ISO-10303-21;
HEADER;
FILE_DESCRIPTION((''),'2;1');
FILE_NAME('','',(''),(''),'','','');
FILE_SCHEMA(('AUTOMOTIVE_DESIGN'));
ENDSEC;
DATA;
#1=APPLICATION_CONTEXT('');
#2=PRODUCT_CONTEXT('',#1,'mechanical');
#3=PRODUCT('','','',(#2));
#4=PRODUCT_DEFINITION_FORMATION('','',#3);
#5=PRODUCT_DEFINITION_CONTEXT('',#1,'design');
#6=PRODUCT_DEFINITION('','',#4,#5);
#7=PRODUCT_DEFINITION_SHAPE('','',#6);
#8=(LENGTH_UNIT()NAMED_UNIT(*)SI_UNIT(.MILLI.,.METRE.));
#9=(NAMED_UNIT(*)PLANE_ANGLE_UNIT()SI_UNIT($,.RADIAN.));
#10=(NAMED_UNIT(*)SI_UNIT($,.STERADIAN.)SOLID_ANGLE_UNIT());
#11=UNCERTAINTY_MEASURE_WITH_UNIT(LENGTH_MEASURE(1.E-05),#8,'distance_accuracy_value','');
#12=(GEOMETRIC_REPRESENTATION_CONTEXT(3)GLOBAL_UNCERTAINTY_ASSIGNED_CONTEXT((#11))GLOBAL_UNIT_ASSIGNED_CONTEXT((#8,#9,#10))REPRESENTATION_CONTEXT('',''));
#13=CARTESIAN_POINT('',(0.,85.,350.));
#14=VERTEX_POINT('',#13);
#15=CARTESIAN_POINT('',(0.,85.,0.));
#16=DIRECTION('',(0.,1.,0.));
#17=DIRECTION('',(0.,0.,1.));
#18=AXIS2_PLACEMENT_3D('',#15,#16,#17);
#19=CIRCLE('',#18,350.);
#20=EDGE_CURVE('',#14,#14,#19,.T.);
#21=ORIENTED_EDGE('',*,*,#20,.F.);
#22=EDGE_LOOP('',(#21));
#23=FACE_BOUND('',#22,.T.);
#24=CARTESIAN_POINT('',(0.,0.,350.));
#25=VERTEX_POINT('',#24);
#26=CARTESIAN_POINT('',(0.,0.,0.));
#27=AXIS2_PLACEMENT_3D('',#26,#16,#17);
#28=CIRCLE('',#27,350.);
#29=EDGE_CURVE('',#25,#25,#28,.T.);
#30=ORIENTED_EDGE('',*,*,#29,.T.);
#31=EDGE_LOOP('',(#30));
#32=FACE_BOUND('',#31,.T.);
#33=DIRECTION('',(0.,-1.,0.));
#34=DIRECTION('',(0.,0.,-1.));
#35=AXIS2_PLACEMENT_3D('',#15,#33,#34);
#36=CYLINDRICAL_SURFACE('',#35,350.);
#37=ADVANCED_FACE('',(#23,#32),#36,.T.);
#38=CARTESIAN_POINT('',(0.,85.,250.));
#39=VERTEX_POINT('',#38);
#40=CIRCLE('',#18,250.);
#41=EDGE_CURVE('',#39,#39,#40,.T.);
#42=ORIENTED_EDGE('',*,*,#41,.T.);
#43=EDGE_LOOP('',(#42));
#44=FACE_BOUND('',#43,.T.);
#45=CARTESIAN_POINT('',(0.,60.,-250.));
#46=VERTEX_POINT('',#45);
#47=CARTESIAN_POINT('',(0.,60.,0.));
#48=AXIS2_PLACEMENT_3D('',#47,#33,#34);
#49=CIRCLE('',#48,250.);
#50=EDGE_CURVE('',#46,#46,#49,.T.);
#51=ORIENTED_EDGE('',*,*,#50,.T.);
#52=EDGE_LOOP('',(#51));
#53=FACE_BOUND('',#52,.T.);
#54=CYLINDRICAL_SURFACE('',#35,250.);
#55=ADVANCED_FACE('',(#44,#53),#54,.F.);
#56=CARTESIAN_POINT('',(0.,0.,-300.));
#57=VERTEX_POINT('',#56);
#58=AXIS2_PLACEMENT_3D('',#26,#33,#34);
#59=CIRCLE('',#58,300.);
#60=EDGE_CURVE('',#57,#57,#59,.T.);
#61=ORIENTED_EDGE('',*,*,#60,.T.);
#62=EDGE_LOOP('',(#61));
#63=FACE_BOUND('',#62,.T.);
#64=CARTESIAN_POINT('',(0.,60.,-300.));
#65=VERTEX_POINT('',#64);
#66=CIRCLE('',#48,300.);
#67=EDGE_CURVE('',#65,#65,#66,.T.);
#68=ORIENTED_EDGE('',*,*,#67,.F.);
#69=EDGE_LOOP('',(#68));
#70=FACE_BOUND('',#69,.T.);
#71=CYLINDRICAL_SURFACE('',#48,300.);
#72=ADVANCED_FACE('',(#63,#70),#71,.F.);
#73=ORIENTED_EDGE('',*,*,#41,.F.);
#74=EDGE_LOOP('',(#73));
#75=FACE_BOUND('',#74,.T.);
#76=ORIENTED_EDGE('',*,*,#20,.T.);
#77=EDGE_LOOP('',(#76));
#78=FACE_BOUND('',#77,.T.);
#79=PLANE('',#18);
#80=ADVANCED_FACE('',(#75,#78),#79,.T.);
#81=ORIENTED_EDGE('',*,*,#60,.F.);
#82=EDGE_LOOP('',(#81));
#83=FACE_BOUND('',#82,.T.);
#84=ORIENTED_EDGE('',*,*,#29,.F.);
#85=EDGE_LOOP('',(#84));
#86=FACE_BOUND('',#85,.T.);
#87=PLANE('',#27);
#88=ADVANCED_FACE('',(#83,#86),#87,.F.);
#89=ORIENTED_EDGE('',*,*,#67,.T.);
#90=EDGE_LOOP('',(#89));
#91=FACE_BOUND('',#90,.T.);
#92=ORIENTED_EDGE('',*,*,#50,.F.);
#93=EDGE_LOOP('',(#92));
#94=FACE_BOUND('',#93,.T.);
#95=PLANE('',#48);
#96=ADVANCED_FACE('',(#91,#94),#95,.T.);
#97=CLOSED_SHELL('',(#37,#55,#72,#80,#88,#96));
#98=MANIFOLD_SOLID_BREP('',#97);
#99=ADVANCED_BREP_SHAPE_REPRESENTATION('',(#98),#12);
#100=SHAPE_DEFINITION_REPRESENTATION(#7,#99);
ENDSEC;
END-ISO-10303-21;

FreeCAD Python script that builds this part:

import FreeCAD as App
import Part
import Sketcher

V = App.Vector
Q = App.Units.Quantity

doc = App.newDocument("Part")
params = doc.addObject("Spreadsheet::Sheet", "Params")
for row, (alias, value) in enumerate([
    ("sketch1_diameter", "700 mm"),
    ("sketch1_diameter2", "500 mm"),
    ("pad1_length", "85 mm"),
    ("sketch2_diameter", "600 mm"),
    ("pocket1_length", "60 mm"),
], start=1):
    params.set(f"A{row}", alias)
    params.set(f"B{row}", "=" + value)
    params.setAlias(f"B{row}", alias)

body = doc.addObject("PartDesign::Body", "Body")

# Sketch on XZ plane
sketch1 = body.newObject("Sketcher::SketchObject", "Sketch")
sketch1.AttachmentSupport = (doc.getObject("XZ_Plane"), [""])
sketch1.MapMode = "FlatFace"
sketch1.addGeometry(Part.Circle(V(0, 0, 0), V(0, 0, 1), 350), False)
sketch1.addGeometry(Part.Circle(V(0, 0, 0), V(0, 0, 1), 250), False)
sketch1.addConstraint(Sketcher.Constraint("Coincident", 0, 3, -1, 1))
sketch1.addConstraint(Sketcher.Constraint("Coincident", 1, 3, -1, 1))
sketch1.addConstraint(Sketcher.Constraint("Diameter", 0, Q("700 mm")))
sketch1.addConstraint(Sketcher.Constraint("Diameter", 1, Q("500 mm")))
sketch1.setExpression("Constraints[2]", "Params.sketch1_diameter")
sketch1.setExpression("Constraints[3]", "Params.sketch1_diameter2")
pad1 = body.newObject("PartDesign::Pad", "Pad")
pad1.Profile = sketch1
pad1.setExpression("Length", "Params.pad1_length")
pad1.Reversed = True

# Sketch on XZ plane
sketch2 = body.newObject("Sketcher::SketchObject", "Sketch001")
sketch2.AttachmentSupport = (doc.getObject("XZ_Plane"), [""])
sketch2.MapMode = "FlatFace"
sketch2.addGeometry(Part.Circle(V(0, 0, 0), V(0, 0, 1), 300), False)
sketch2.addConstraint(Sketcher.Constraint("Coincident", 0, 3, -1, 1))
sketch2.addConstraint(Sketcher.Constraint("Diameter", 0, Q("600 mm")))
sketch2.setExpression("Constraints[1]", "Params.sketch2_diameter")
pocket1 = body.newObject("PartDesign::Pocket", "Pocket")
pocket1.Profile = sketch2
pocket1.setExpression("Length", "Params.pocket1_length")

doc.recompute()
